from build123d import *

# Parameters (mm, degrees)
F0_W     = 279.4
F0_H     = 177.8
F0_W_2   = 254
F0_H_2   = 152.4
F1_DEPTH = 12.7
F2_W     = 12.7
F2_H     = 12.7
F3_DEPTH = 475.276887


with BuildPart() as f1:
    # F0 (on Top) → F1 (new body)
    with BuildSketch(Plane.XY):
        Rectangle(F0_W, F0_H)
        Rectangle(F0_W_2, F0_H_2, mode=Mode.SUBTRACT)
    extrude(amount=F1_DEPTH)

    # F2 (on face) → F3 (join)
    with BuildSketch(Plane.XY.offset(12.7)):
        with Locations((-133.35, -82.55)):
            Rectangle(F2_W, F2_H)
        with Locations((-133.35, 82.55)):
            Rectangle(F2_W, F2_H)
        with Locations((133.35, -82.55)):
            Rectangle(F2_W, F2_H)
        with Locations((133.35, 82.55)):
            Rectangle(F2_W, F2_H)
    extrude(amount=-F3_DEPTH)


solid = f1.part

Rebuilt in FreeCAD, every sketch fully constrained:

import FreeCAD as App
import Part
import Sketcher

V = App.Vector
Q = App.Units.Quantity

doc = App.newDocument("Part")
body = doc.addObject("PartDesign::Body", "Body")

# Sketch on XY plane
sketch1 = body.newObject("Sketcher::SketchObject", "Sketch")
sketch1.AttachmentSupport = (doc.getObject("XY_Plane"), [""])
sketch1.MapMode = "FlatFace"
sketch1.addGeometry([
    Part.LineSegment(V(-140, 89, 0), V(-140, -89, 0)),  # 0
    Part.LineSegment(V(-140, -89, 0), V(140, -89, 0)),  # 1
    Part.LineSegment(V(140, -89, 0), V(140, 89, 0)),  # 2
    Part.LineSegment(V(140, 89, 0), V(-140, 89, 0)),  # 3
    Part.LineSegment(V(127, -76, 0), V(-127, -76, 0)),  # 4
    Part.LineSegment(V(-127, -76, 0), V(-127, 76, 0)),  # 5
    Part.LineSegment(V(-127, 76, 0), V(127, 76, 0)),  # 6
    Part.LineSegment(V(127, 76, 0), V(127, -76, 0)),  # 7
], False)
sketch1.addConstraint([
    Sketcher.Constraint("Coincident", 0, 2, 1, 1),
    Sketcher.Constraint("Coincident", 1, 2, 2, 1),
    Sketcher.Constraint("Coincident", 2, 2, 3, 1),
    Sketcher.Constraint("Coincident", 3, 2, 0, 1),
    Sketcher.Constraint("Coincident", 4, 2, 5, 1),
    Sketcher.Constraint("Coincident", 5, 2, 6, 1),
    Sketcher.Constraint("Coincident", 6, 2, 7, 1),
    Sketcher.Constraint("Coincident", 7, 2, 4, 1),
    Sketcher.Constraint("Vertical", 0),
    Sketcher.Constraint("Horizontal", 1),
    Sketcher.Constraint("Vertical", 2),
    Sketcher.Constraint("Horizontal", 3),
    Sketcher.Constraint("Horizontal", 4),
    Sketcher.Constraint("Vertical", 5),
    Sketcher.Constraint("Horizontal", 6),
    Sketcher.Constraint("Vertical", 7),
    Sketcher.Constraint("Symmetric", 0, 2, 2, 2, -1, 1),
    Sketcher.Constraint("Symmetric", 4, 2, 6, 2, -1, 1),
    Sketcher.Constraint("DistanceX", 1, 1, 1, 2, Q("11 in")),
    Sketcher.Constraint("DistanceX", 4, 2, 4, 1, Q("10 in")),
    Sketcher.Constraint("DistanceY", 0, 2, 0, 1, Q("7 in")),
    Sketcher.Constraint("DistanceY", 5, 1, 5, 2, Q("6 in")),
])
pad1 = body.newObject("PartDesign::Pad", "Pad")
pad1.Profile = sketch1
pad1.Length = Q("0.5 in")

# Sketch on XY plane
sketch2 = body.newObject("Sketcher::SketchObject", "Sketch001")
sketch2.AttachmentSupport = (doc.getObject("XY_Plane"), [""])
sketch2.MapMode = "FlatFace"
sketch2.AttachmentOffset = App.Placement(V(0, 0, 0.5 * 25.4), App.Rotation())
sketch2.addGeometry([
    Part.LineSegment(V(-140, -76, 0), V(-140, -89, 0)),  # 0
    Part.LineSegment(V(-140, -89, 0), V(-127, -89, 0)),  # 1
    Part.LineSegment(V(-127, -89, 0), V(-127, -76, 0)),  # 2
    Part.LineSegment(V(-127, -76, 0), V(-140, -76, 0)),  # 3
    Part.LineSegment(V(-140, 89, 0), V(-140, 76, 0)),  # 4
    Part.LineSegment(V(-140, 76, 0), V(-127, 76, 0)),  # 5
    Part.LineSegment(V(-127, 76, 0), V(-127, 89, 0)),  # 6
    Part.LineSegment(V(-127, 89, 0), V(-140, 89, 0)),  # 7
    Part.LineSegment(V(127, -76, 0), V(127, -89, 0)),  # 8
    Part.LineSegment(V(127, -89, 0), V(140, -89, 0)),  # 9
    Part.LineSegment(V(140, -89, 0), V(140, -76, 0)),  # 10
    Part.LineSegment(V(140, -76, 0), V(127, -76, 0)),  # 11
    Part.LineSegment(V(127, 89, 0), V(127, 76, 0)),  # 12
    Part.LineSegment(V(127, 76, 0), V(140, 76, 0)),  # 13
    Part.LineSegment(V(140, 76, 0), V(140, 89, 0)),  # 14
    Part.LineSegment(V(140, 89, 0), V(127, 89, 0)),  # 15
], False)
sketch2.addConstraint([
    Sketcher.Constraint("Coincident", 0, 2, 1, 1),
    Sketcher.Constraint("Coincident", 1, 2, 2, 1),
    Sketcher.Constraint("Coincident", 2, 2, 3, 1),
    Sketcher.Constraint("Coincident", 3, 2, 0, 1),
    Sketcher.Constraint("Coincident", 4, 2, 5, 1),
    Sketcher.Constraint("Coincident", 5, 2, 6, 1),
    Sketcher.Constraint("Coincident", 6, 2, 7, 1),
    Sketcher.Constraint("Coincident", 7, 2, 4, 1),
    Sketcher.Constraint("Coincident", 8, 2, 9, 1),
    Sketcher.Constraint("Coincident", 9, 2, 10, 1),
    Sketcher.Constraint("Coincident", 10, 2, 11, 1),
    Sketcher.Constraint("Coincident", 11, 2, 8, 1),
    Sketcher.Constraint("Coincident", 12, 2, 13, 1),
    Sketcher.Constraint("Coincident", 13, 2, 14, 1),
    Sketcher.Constraint("Coincident", 14, 2, 15, 1),
    Sketcher.Constraint("Coincident", 15, 2, 12, 1),
    Sketcher.Constraint("Vertical", 0),
    Sketcher.Constraint("Horizontal", 1),
    Sketcher.Constraint("Vertical", 2),
    Sketcher.Constraint("Horizontal", 3),
    Sketcher.Constraint("Vertical", 4),
    Sketcher.Constraint("Horizontal", 5),
    Sketcher.Constraint("Vertical", 6),
    Sketcher.Constraint("Horizontal", 7),
    Sketcher.Constraint("Vertical", 8),
    Sketcher.Constraint("Horizontal", 9),
    Sketcher.Constraint("Vertical", 10),
    Sketcher.Constraint("Horizontal", 11),
    Sketcher.Constraint("Vertical", 12),
    Sketcher.Constraint("Horizontal", 13),
    Sketcher.Constraint("Vertical", 14),
    Sketcher.Constraint("Horizontal", 15),
    Sketcher.Constraint("Symmetric", 6, 2, 8, 2, -1, 1),
    Sketcher.Constraint("Symmetric", 4, 2, 10, 2, -1, 1),
    Sketcher.Constraint("Symmetric", 2, 2, 12, 2, -1, 1),
    Sketcher.Constraint("Symmetric", 0, 2, 14, 2, -1, 1),
    Sketcher.Constraint("Symmetric", 1, 2, 8, 2, -2),
    Sketcher.Constraint("Symmetric", 3, 2, 10, 2, -2),
    Sketcher.Constraint("Equal", 15, 0),
    Sketcher.Constraint("DistanceX", 1, 1, 1, 2, Q("0.5 in")),
    Sketcher.Constraint("DistanceX", 1, 2, -1, 1, Q("5 in")),
    Sketcher.Constraint("DistanceY", 2, 2, -1, 1, Q("3 in")),
])
pad2 = body.newObject("PartDesign::Pad", "Pad001")
pad2.Profile = sketch2
pad2.Length = 475.276887
pad2.Reversed = True

doc.recompute()
